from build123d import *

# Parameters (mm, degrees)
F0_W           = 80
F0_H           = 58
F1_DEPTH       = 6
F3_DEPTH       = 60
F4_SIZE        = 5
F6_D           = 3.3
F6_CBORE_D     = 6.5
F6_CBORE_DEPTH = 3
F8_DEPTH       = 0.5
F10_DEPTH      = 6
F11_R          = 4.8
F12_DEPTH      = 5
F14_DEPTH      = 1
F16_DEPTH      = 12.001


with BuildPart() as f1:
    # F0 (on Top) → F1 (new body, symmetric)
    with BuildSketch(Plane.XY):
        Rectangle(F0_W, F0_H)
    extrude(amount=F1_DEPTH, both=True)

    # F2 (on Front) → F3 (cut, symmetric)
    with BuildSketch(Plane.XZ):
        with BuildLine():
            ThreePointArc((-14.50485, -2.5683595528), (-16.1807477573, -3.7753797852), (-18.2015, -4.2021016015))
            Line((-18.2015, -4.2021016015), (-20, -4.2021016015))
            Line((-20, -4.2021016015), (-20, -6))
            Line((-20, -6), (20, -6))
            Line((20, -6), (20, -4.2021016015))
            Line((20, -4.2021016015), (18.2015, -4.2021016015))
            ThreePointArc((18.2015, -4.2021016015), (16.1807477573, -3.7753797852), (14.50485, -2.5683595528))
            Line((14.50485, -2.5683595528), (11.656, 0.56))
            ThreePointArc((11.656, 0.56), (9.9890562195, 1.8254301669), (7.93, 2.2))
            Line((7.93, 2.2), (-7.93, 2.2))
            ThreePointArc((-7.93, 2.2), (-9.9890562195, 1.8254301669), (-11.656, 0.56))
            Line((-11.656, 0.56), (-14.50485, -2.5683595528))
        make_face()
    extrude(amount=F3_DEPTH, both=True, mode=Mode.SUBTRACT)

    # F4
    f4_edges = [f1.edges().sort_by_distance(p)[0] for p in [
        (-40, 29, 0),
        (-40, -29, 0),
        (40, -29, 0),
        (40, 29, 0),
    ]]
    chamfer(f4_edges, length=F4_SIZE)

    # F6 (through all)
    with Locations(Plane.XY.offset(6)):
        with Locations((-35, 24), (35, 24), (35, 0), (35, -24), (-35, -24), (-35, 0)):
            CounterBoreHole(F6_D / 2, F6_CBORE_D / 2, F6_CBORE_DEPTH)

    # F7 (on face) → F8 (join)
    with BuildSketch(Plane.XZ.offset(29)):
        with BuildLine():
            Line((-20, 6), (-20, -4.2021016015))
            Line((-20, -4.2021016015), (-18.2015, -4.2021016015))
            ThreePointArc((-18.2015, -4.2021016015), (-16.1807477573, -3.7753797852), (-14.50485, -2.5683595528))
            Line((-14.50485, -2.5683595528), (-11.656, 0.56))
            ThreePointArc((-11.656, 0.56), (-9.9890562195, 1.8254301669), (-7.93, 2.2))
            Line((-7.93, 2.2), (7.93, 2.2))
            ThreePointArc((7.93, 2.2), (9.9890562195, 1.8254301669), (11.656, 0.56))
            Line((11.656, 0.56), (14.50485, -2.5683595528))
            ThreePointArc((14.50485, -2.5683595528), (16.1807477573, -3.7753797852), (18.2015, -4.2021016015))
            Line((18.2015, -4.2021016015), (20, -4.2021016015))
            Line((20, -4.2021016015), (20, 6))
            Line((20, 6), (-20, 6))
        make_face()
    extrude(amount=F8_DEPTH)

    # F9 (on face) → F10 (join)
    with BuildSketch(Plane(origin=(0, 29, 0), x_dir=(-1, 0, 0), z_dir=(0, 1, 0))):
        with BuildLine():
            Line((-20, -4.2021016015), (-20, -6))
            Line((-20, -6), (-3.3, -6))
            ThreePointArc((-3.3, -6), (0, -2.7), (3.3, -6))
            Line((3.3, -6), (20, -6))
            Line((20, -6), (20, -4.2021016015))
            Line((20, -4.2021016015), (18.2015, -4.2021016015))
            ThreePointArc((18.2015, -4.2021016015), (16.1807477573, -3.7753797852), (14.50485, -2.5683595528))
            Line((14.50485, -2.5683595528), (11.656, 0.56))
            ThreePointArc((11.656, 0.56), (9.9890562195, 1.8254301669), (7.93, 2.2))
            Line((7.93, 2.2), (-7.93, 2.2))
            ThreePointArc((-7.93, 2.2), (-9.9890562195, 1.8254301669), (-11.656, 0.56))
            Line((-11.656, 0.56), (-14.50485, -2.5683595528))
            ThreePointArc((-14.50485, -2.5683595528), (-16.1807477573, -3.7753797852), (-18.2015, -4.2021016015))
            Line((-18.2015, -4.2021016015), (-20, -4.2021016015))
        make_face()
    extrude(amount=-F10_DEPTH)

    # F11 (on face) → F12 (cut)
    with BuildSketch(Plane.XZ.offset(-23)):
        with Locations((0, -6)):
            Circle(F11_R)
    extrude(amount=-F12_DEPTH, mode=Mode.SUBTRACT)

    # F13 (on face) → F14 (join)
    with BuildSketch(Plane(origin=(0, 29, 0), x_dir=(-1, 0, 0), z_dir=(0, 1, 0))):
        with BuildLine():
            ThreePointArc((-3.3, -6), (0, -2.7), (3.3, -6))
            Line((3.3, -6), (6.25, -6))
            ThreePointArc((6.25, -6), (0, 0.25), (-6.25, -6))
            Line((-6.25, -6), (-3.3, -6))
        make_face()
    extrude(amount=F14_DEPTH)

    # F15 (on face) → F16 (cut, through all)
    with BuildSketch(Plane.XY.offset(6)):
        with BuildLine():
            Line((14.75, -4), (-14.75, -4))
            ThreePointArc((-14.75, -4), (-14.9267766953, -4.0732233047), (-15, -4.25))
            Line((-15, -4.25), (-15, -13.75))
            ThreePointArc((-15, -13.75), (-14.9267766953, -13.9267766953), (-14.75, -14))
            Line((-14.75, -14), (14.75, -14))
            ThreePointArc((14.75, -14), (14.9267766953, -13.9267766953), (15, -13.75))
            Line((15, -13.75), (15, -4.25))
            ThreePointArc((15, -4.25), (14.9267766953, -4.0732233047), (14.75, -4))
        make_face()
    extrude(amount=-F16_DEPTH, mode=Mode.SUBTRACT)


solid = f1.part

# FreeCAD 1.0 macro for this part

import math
import FreeCAD as App
import Part
import Sketcher
from FreeCAD import Vector
Q = App.Units.Quantity


def edges_at(feature, points):
    """Names of the edges that pass closest to the given points."""
    edges = feature.Shape.Edges
    near = lambda p: min(range(len(edges)), key=lambda i: edges[i].distToShape(Part.Vertex(*p))[0])
    return sorted({f"Edge{near(p) + 1}" for p in points})


def add_polygon(sketch, points):
    """Adds a closed chain of lines whose ends are joined by coincident constraints."""
    first, n = sketch.GeometryCount, len(points)
    for a, b in zip(points, points[1:] + points[:1]):
        sketch.addGeometry(Part.LineSegment(App.Vector(*a, 0), App.Vector(*b, 0)), False)
    for i in range(n):
        sketch.addConstraint(Sketcher.Constraint("Coincident", first + i, 2, first + (i + 1) % n, 1))

doc = App.newDocument("Part")
body = doc.addObject("PartDesign::Body", "Body")

sketch1 = doc.addObject("Sketcher::SketchObject", "Sketch")
body.addObject(sketch1)
sketch1.AttachmentSupport = (doc.XY_Plane, [""])
sketch1.MapMode = "FlatFace"
add_polygon(sketch1, [(-40, 29), (-40, -29), (40, -29), (40, 29)])
sketch1.addConstraint([
    Sketcher.Constraint("Vertical", 0),
    Sketcher.Constraint("Horizontal", 1),
    Sketcher.Constraint("Vertical", 2),
    Sketcher.Constraint("Horizontal", 3),
    Sketcher.Constraint("Symmetric", 0, 2, 2, 2, -1, 1),
    Sketcher.Constraint("DistanceX", 1, 1, 1, 2, Q("80 mm")),
    Sketcher.Constraint("DistanceY", 0, 2, 0, 1, Q("58 mm")),
])
pad1 = doc.addObject("PartDesign::Pad", "Pad")
body.addObject(pad1)
pad1.Profile = sketch1
pad1.Length = 12
pad1.Midplane = True

sketch2 = doc.addObject("Sketcher::SketchObject", "Sketch001")
body.addObject(sketch2)
sketch2.AttachmentSupport = (doc.XZ_Plane, [""])
sketch2.MapMode = "FlatFace"
sketch2.addGeometry([
    Part.ArcOfCircle(Part.Circle(Vector(-18.201917, 0.797898, 0), Vector(0, 0, 1), 5), math.radians(-89.995217), math.radians(-42.318523)),
    Part.LineSegment(Vector(-18.2015, -4.202102, 0), Vector(-20, -4.202102, 0)),
    Part.LineSegment(Vector(-20, -4.202102, 0), Vector(-20, -6, 0)),
    Part.LineSegment(Vector(-20, -6, 0), Vector(20, -6, 0)),
    Part.LineSegment(Vector(20, -6, 0), Vector(20, -4.202102, 0)),
    Part.LineSegment(Vector(20, -4.202102, 0), Vector(18.2015, -4.202102, 0)),
    Part.ArcOfCircle(Part.Circle(Vector(18.201917, 0.797898, 0), Vector(0, 0, 1), 5), math.radians(-137.681477), math.radians(-90.004783)),
    Part.LineSegment(Vector(14.50485, -2.56836, 0), Vector(11.656, 0.56, 0)),
    Part.ArcOfCircle(Part.Circle(Vector(8.176214, -2.293259, 0), Vector(0, 0, 1), 4.5), math.radians(39.350124), math.radians(93.136458)),
    Part.LineSegment(Vector(7.93, 2.2, 0), Vector(-7.93, 2.2, 0)),
    Part.ArcOfCircle(Part.Circle(Vector(-8.176214, -2.293259, 0), Vector(0, 0, 1), 4.5), math.radians(86.863542), math.radians(140.649876)),
    Part.LineSegment(Vector(-11.656, 0.56, 0), Vector(-14.50485, -2.56836, 0)),
], False)
sketch2.addConstraint([
    Sketcher.Constraint("Coincident", 0, 1, 1, 1),
    Sketcher.Constraint("Coincident", 1, 2, 2, 1),
    Sketcher.Constraint("Coincident", 2, 2, 3, 1),
    Sketcher.Constraint("Coincident", 3, 2, 4, 1),
    Sketcher.Constraint("Coincident", 4, 2, 5, 1),
    Sketcher.Constraint("Coincident", 5, 2, 6, 2),
    Sketcher.Constraint("Coincident", 6, 1, 7, 1),
    Sketcher.Constraint("Coincident", 7, 2, 8, 1),
    Sketcher.Constraint("Coincident", 8, 2, 9, 1),
    Sketcher.Constraint("Coincident", 9, 2, 10, 1),
    Sketcher.Constraint("Coincident", 10, 2, 11, 1),
    Sketcher.Constraint("Coincident", 11, 2, 0, 2),
    Sketcher.Constraint("Horizontal", 1),
    Sketcher.Constraint("Vertical", 2),
    Sketcher.Constraint("Horizontal", 3),
    Sketcher.Constraint("Vertical", 4),
    Sketcher.Constraint("Horizontal", 5),
    Sketcher.Constraint("Horizontal", 9),
    Sketcher.Constraint("Equal", 0, 6),
    Sketcher.Constraint("Equal", 8, 10),
    Sketcher.Constraint("Symmetric", 0, 3, 6, 3, -2),
    Sketcher.Constraint("Symmetric", 8, 3, 10, 3, -2),
    Sketcher.Constraint("Horizontal", 7, 2, 10, 2),
    Sketcher.Constraint("Horizontal", 6, 1, 11, 2),
    Sketcher.Constraint("Equal", 1, 5),
    Sketcher.Constraint("Radius", 0, Q("5 mm")),
    Sketcher.Constraint("Radius", 8, Q("4.5 mm")),
    Sketcher.Constraint("DistanceX", 3, 1, 3, 2, Q("40 mm")),
    Sketcher.Constraint("DistanceX", 1, 2, -1, 1, Q("20 mm")),
    Sketcher.Constraint("DistanceY", 2, 2, -1, 1, Q("6 mm")),
    Sketcher.Constraint("DistanceX", 9, 2, 9, 1, Q("15.86 mm")),
    Sketcher.Constraint("DistanceY", -1, 1, 8, 2, Q("2.2 mm")),
    Sketcher.Constraint("DistanceY", -1, 1, 7, 2, Q("0.56 mm")),
    Sketcher.Constraint("DistanceX", 1, 2, 1, 1, Q("1.7985 mm")),
    Sketcher.Constraint("DistanceY", 2, 2, 2, 1, Q("1.797898 mm")),
    Sketcher.Constraint("DistanceX", -1, 1, 7, 2, Q("11.656 mm")),
    Sketcher.Constraint("DistanceY", 6, 1, 8, 3, Q("0.2751 mm")),
    Sketcher.Constraint("DistanceX", -1, 1, 6, 1, Q("14.50485 mm")),
])
pocket1 = doc.addObject("PartDesign::Pocket", "Pocket")
body.addObject(pocket1)
pocket1.Profile = sketch2
pocket1.Length = 120
pocket1.Midplane = True
doc.recompute()

chamfer = doc.addObject("PartDesign::Chamfer", "Chamfer")
body.addObject(chamfer)
chamfer.Base = (pocket1, edges_at(pocket1, [
    (-40, 29, 0),
    (-40, -29, 0),
    (40, -29, 0),
    (40, 29, 0),
]))
chamfer.Size = 5

sketch3 = doc.addObject("Sketcher::SketchObject", "Sketch002")
body.addObject(sketch3)
sketch3.AttachmentSupport = (doc.XY_Plane, [""])
sketch3.MapMode = "FlatFace"
sketch3.AttachmentOffset = App.Placement(Vector(0, 0, 6), App.Rotation())
sketch3.addGeometry([
    Part.Circle(Vector(-35, 24, 0), Vector(0, 0, 1), 1.65),
    Part.Circle(Vector(35, 24, 0), Vector(0, 0, 1), 1.65),
    Part.Circle(Vector(35, 0, 0), Vector(0, 0, 1), 1.65),
    Part.Circle(Vector(35, -24, 0), Vector(0, 0, 1), 1.65),
    Part.Circle(Vector(-35, -24, 0), Vector(0, 0, 1), 1.65),
    Part.Circle(Vector(-35, 0, 0), Vector(0, 0, 1), 1.65),
], False)
sketch3.addConstraint([
    Sketcher.Constraint("Equal", 0, 1),
    Sketcher.Constraint("Equal", 1, 2),
    Sketcher.Constraint("Equal", 2, 3),
    Sketcher.Constraint("Equal", 3, 4),
    Sketcher.Constraint("Equal", 4, 5),
    Sketcher.Constraint("Symmetric", 0, 3, 3, 3, -1, 1),
    Sketcher.Constraint("Symmetric", 1, 3, 4, 3, -1, 1),
    Sketcher.Constraint("Symmetric", 2, 3, 5, 3, -1, 1),
    Sketcher.Constraint("Symmetric", 0, 3, 1, 3, -2),
    Sketcher.Constraint("PointOnObject", 2, 3, -1),
    Sketcher.Constraint("Vertical", 1, 3, 2, 3),
    Sketcher.Constraint("Diameter", 0, Q("3.3 mm")),
    Sketcher.Constraint("DistanceX", 0, 3, -1, 1, Q("35 mm")),
    Sketcher.Constraint("DistanceY", -1, 1, 0, 3, Q("24 mm")),
])
doc.recompute()
hole = doc.addObject("PartDesign::Hole", "Hole")
body.addObject(hole)
hole.Profile = sketch3
hole.ThreadType = "None"
hole.Diameter = 3.3
hole.DepthType = "ThroughAll"
hole.HoleCutType = "Counterbore"
hole.HoleCutDiameter = 6.5
hole.HoleCutDepth = 3

sketch4 = doc.addObject("Sketcher::SketchObject", "Sketch003")
body.addObject(sketch4)
sketch4.AttachmentSupport = (doc.XZ_Plane, [""])
sketch4.MapMode = "FlatFace"
sketch4.AttachmentOffset = App.Placement(Vector(0, 0, 29), App.Rotation())
sketch4.addGeometry([
    Part.LineSegment(Vector(-20, 6, 0), Vector(-20, -4.202102, 0)),
    Part.LineSegment(Vector(-20, -4.202102, 0), Vector(-18.2015, -4.202102, 0)),
    Part.ArcOfCircle(Part.Circle(Vector(-18.201917, 0.797898, 0), Vector(0, 0, 1), 5), math.radians(-89.995217), math.radians(-42.318523)),
    Part.LineSegment(Vector(-14.50485, -2.56836, 0), Vector(-11.656, 0.56, 0)),
    Part.ArcOfCircle(Part.Circle(Vector(-8.176214, -2.293259, 0), Vector(0, 0, 1), 4.5), math.radians(86.863542), math.radians(140.649876)),
    Part.LineSegment(Vector(-7.93, 2.2, 0), Vector(7.93, 2.2, 0)),
    Part.ArcOfCircle(Part.Circle(Vector(8.176214, -2.293259, 0), Vector(0, 0, 1), 4.5), math.radians(39.350124), math.radians(93.136458)),
    Part.LineSegment(Vector(11.656, 0.56, 0), Vector(14.50485, -2.56836, 0)),
    Part.ArcOfCircle(Part.Circle(Vector(18.201917, 0.797898, 0), Vector(0, 0, 1), 5), math.radians(-137.681477), math.radians(-90.004783)),
    Part.LineSegment(Vector(18.2015, -4.202102, 0), Vector(20, -4.202102, 0)),
    Part.LineSegment(Vector(20, -4.202102, 0), Vector(20, 6, 0)),
    Part.LineSegment(Vector(20, 6, 0), Vector(-20, 6, 0)),
], False)
sketch4.addConstraint([
    Sketcher.Constraint("Coincident", 0, 2, 1, 1),
    Sketcher.Constraint("Coincident", 1, 2, 2, 1),
    Sketcher.Constraint("Coincident", 2, 2, 3, 1),
    Sketcher.Constraint("Coincident", 3, 2, 4, 2),
    Sketcher.Constraint("Coincident", 4, 1, 5, 1),
    Sketcher.Constraint("Coincident", 5, 2, 6, 2),
    Sketcher.Constraint("Coincident", 6, 1, 7, 1),
    Sketcher.Constraint("Coincident", 7, 2, 8, 1),
    Sketcher.Constraint("Coincident", 8, 2, 9, 1),
    Sketcher.Constraint("Coincident", 9, 2, 10, 1),
    Sketcher.Constraint("Coincident", 10, 2, 11, 1),
    Sketcher.Constraint("Coincident", 11, 2, 0, 1),
    Sketcher.Constraint("Vertical", 0),
    Sketcher.Constraint("Horizontal", 1),
    Sketcher.Constraint("Horizontal", 5),
    Sketcher.Constraint("Horizontal", 9),
    Sketcher.Constraint("Vertical", 10),
    Sketcher.Constraint("Horizontal", 11),
    Sketcher.Constraint("Equal", 4, 6),
    Sketcher.Constraint("Equal", 2, 8),
    Sketcher.Constraint("Symmetric", 4, 3, 6, 3, -2),
    Sketcher.Constraint("Symmetric", 2, 3, 8, 3, -2),
    Sketcher.Constraint("Horizontal", 3, 2, 6, 1),
    Sketcher.Constraint("Horizontal", 2, 2, 7, 2),
    Sketcher.Constraint("Equal", 1, 9),
    Sketcher.Constraint("Radius", 2, Q("5 mm")),
    Sketcher.Constraint("Radius", 4, Q("4.5 mm")),
    Sketcher.Constraint("DistanceX", 11, 2, 11, 1, Q("40 mm")),
    Sketcher.Constraint("DistanceX", 0, 2, -1, 1, Q("20 mm")),
    Sketcher.Constraint("DistanceY", -1, 1, 10, 2, Q("6 mm")),
    Sketcher.Constraint("DistanceX", 5, 1, 5, 2, Q("15.86 mm")),
    Sketcher.Constraint("DistanceY", -1, 1, 4, 1, Q("2.2 mm")),
    Sketcher.Constraint("DistanceY", -1, 1, 3, 2, Q("0.56 mm")),
    Sketcher.Constraint("DistanceX", 1, 1, 1, 2, Q("1.7985 mm")),
    Sketcher.Constraint("DistanceY", 0, 2, 0, 1, Q("10.202102 mm")),
    Sketcher.Constraint("DistanceX", 3, 2, -1, 1, Q("11.656 mm")),
    Sketcher.Constraint("DistanceY", 2, 2, 4, 3, Q("0.2751 mm")),
    Sketcher.Constraint("DistanceX", 2, 2, -1, 1, Q("14.50485 mm")),
])
pad2 = doc.addObject("PartDesign::Pad", "Pad001")
body.addObject(pad2)
pad2.Profile = sketch4
pad2.Length = 0.5

sketch5 = doc.addObject("Sketcher::SketchObject", "Sketch004")
body.addObject(sketch5)
sketch5.AttachmentSupport = (doc.XZ_Plane, [""])
sketch5.MapMode = "FlatFace"
sketch5.AttachmentOffset = App.Placement(Vector(0, 0, -29), App.Rotation())
sketch5.addGeometry([
    Part.LineSegment(Vector(20, -4.202102, 0), Vector(20, -6, 0)),
    Part.LineSegment(Vector(20, -6, 0), Vector(3.3, -6, 0)),
    Part.ArcOfCircle(Part.Circle(Vector(0, -6, 0), Vector(0, 0, 1), 3.3), math.radians(0), math.radians(180)),
    Part.LineSegment(Vector(-3.3, -6, 0), Vector(-20, -6, 0)),
    Part.LineSegment(Vector(-20, -6, 0), Vector(-20, -4.202102, 0)),
    Part.LineSegment(Vector(-20, -4.202102, 0), Vector(-18.2015, -4.202102, 0)),
    Part.ArcOfCircle(Part.Circle(Vector(-18.201917, 0.797898, 0), Vector(0, 0, 1), 5), math.radians(-89.995217), math.radians(-42.318523)),
    Part.LineSegment(Vector(-14.50485, -2.56836, 0), Vector(-11.656, 0.56, 0)),
    Part.ArcOfCircle(Part.Circle(Vector(-8.176214, -2.293259, 0), Vector(0, 0, 1), 4.5), math.radians(86.863542), math.radians(140.649876)),
    Part.LineSegment(Vector(-7.93, 2.2, 0), Vector(7.93, 2.2, 0)),
    Part.ArcOfCircle(Part.Circle(Vector(8.176214, -2.293259, 0), Vector(0, 0, 1), 4.5), math.radians(39.350124), math.radians(93.136458)),
    Part.LineSegment(Vector(11.656, 0.56, 0), Vector(14.50485, -2.56836, 0)),
    Part.ArcOfCircle(Part.Circle(Vector(18.201917, 0.797898, 0), Vector(0, 0, 1), 5), math.radians(-137.681477), math.radians(-90.004783)),
    Part.LineSegment(Vector(18.2015, -4.202102, 0), Vector(20, -4.202102, 0)),
], False)
sketch5.addConstraint([
    Sketcher.Constraint("Coincident", 0, 2, 1, 1),
    Sketcher.Constraint("Coincident", 1, 2, 2, 1),
    Sketcher.Constraint("Coincident", 2, 2, 3, 1),
    Sketcher.Constraint("Coincident", 3, 2, 4, 1),
    Sketcher.Constraint("Coincident", 4, 2, 5, 1),
    Sketcher.Constraint("Coincident", 5, 2, 6, 1),
    Sketcher.Constraint("Coincident", 6, 2, 7, 1),
    Sketcher.Constraint("Coincident", 7, 2, 8, 2),
    Sketcher.Constraint("Coincident", 8, 1, 9, 1),
    Sketcher.Constraint("Coincident", 9, 2, 10, 2),
    Sketcher.Constraint("Coincident", 10, 1, 11, 1),
    Sketcher.Constraint("Coincident", 11, 2, 12, 1),
    Sketcher.Constraint("Coincident", 12, 2, 13, 1),
    Sketcher.Constraint("Coincident", 13, 2, 0, 1),
    Sketcher.Constraint("Vertical", 0),
    Sketcher.Constraint("Horizontal", 1),
    Sketcher.Constraint("Horizontal", 3),
    Sketcher.Constraint("Vertical", 4),
    Sketcher.Constraint("Horizontal", 5),
    Sketcher.Constraint("Horizontal", 9),
    Sketcher.Constraint("Horizontal", 13),
    Sketcher.Constraint("Equal", 8, 10),
    Sketcher.Constraint("Equal", 6, 12),
    Sketcher.Constraint("Symmetric", 8, 3, 10, 3, -2),
    Sketcher.Constraint("Symmetric", 6, 3, 12, 3, -2),
    Sketcher.Constraint("Symmetric", 1, 2, 2, 2, -2),
    Sketcher.Constraint("Horizontal", 2, 3, 0, 2),
    Sketcher.Constraint("Horizontal", 7, 2, 10, 1),
    Sketcher.Constraint("Horizontal", 6, 2, 11, 2),
    Sketcher.Constraint("Equal", 1, 3),
    Sketcher.Constraint("Equal", 5, 13),
    Sketcher.Constraint("Radius", 6, Q("5 mm")),
    Sketcher.Constraint("Radius", 2, Q("3.3 mm")),
    Sketcher.Constraint("Radius", 8, Q("4.5 mm")),
    Sketcher.Constraint("DistanceX", 1, 2, 1, 1, Q("16.7 mm")),
    Sketcher.Constraint("DistanceY", 2, 3, -1, 1, Q("6 mm")),
    Sketcher.Constraint("DistanceX", 9, 1, 9, 2, Q("15.86 mm")),
    Sketcher.Constraint("DistanceY", -1, 1, 8, 1, Q("2.2 mm")),
    Sketcher.Constraint("DistanceY", -1, 1, 7, 2, Q("0.56 mm")),
    Sketcher.Constraint("DistanceX", 5, 1, 5, 2, Q("1.7985 mm")),
    Sketcher.Constraint("DistanceY", 0, 2, 0, 1, Q("1.797898 mm")),
    Sketcher.Constraint("DistanceX", 7, 2, -1, 1, Q("11.656 mm")),
    Sketcher.Constraint("DistanceY", 6, 2, 8, 3, Q("0.2751 mm")),
    Sketcher.Constraint("DistanceX", 6, 2, -1, 1, Q("14.50485 mm")),
])
pad3 = doc.addObject("PartDesign::Pad", "Pad002")
body.addObject(pad3)
pad3.Profile = sketch5
pad3.Length = 6

sketch6 = doc.addObject("Sketcher::SketchObject", "Sketch005")
body.addObject(sketch6)
sketch6.AttachmentSupport = (doc.XZ_Plane, [""])
sketch6.MapMode = "FlatFace"
sketch6.AttachmentOffset = App.Placement(Vector(0, 0, -23), App.Rotation())
sketch6.addGeometry(Part.Circle(Vector(0, -6, 0), Vector(0, 0, 1), 4.8), False)
sketch6.addConstraint([
    Sketcher.Constraint("PointOnObject", 0, 3, -2),
    Sketcher.Constraint("Diameter", 0, Q("9.6 mm")),
    Sketcher.Constraint("DistanceY", 0, 3, -1, 1, Q("6 mm")),
])
pocket2 = doc.addObject("PartDesign::Pocket", "Pocket001")
body.addObject(pocket2)
pocket2.Profile = sketch6
pocket2.Length = 5

sketch7 = doc.addObject("Sketcher::SketchObject", "Sketch006")
body.addObject(sketch7)
sketch7.AttachmentSupport = (doc.XZ_Plane, [""])
sketch7.MapMode = "FlatFace"
sketch7.AttachmentOffset = App.Placement(Vector(0, 0, -29), App.Rotation())
sketch7.addGeometry([
    Part.ArcOfCircle(Part.Circle(Vector(0, -6, 0), Vector(0, 0, 1), 3.3), math.radians(0), math.radians(180)),
    Part.LineSegment(Vector(-3.3, -6, 0), Vector(-6.25, -6, 0)),
    Part.ArcOfCircle(Part.Circle(Vector(0, -6, 0), Vector(0, 0, 1), 6.25), math.radians(0), math.radians(180)),
    Part.LineSegment(Vector(6.25, -6, 0), Vector(3.3, -6, 0)),
], False)
sketch7.addConstraint([
    Sketcher.Constraint("Coincident", 0, 2, 1, 1),
    Sketcher.Constraint("Coincident", 1, 2, 2, 2),
    Sketcher.Constraint("Coincident", 2, 1, 3, 1),
    Sketcher.Constraint("Coincident", 3, 2, 0, 1),
    Sketcher.Constraint("Horizontal", 1),
    Sketcher.Constraint("Horizontal", 3),
    Sketcher.Constraint("Coincident", 2, 3, 0, 3),
    Sketcher.Constraint("Symmetric", 1, 2, 2, 1, -2),
    Sketcher.Constraint("Horizontal", 2, 3, 0, 2),
    Sketcher.Constraint("Radius", 0, Q("3.3 mm")),
    Sketcher.Constraint("Radius", 2, Q("6.25 mm")),
    Sketcher.Constraint("DistanceY", 0, 3, -1, 1, Q("6 mm")),
])
pad4 = doc.addObject("PartDesign::Pad", "Pad003")
body.addObject(pad4)
pad4.Profile = sketch7
pad4.Length = 1
pad4.Reversed = True

sketch8 = doc.addObject("Sketcher::SketchObject", "Sketch007")
body.addObject(sketch8)
sketch8.AttachmentSupport = (doc.XY_Plane, [""])
sketch8.MapMode = "FlatFace"
sketch8.AttachmentOffset = App.Placement(Vector(0, 0, 6), App.Rotation())
sketch8.addGeometry([
    Part.LineSegment(Vector(14.75, -4, 0), Vector(-14.75, -4, 0)),
    Part.ArcOfCircle(Part.Circle(Vector(-14.75, -4.25, 0), Vector(0, 0, 1), 0.25), math.radians(90), math.radians(180)),
    Part.LineSegment(Vector(-15, -4.25, 0), Vector(-15, -13.75, 0)),
    Part.ArcOfCircle(Part.Circle(Vector(-14.75, -13.75, 0), Vector(0, 0, 1), 0.25), math.radians(180), math.radians(270)),
    Part.LineSegment(Vector(-14.75, -14, 0), Vector(14.75, -14, 0)),
    Part.ArcOfCircle(Part.Circle(Vector(14.75, -13.75, 0), Vector(0, 0, 1), 0.25), math.radians(-90), math.radians(0)),
    Part.LineSegment(Vector(15, -13.75, 0), Vector(15, -4.25, 0)),
    Part.ArcOfCircle(Part.Circle(Vector(14.75, -4.25, 0), Vector(0, 0, 1), 0.25), math.radians(0), math.radians(90)),
], False)
sketch8.addConstraint([
    Sketcher.Constraint("Tangent", 0, 2, 1, 1),
    Sketcher.Constraint("Tangent", 1, 2, 2, 1),
    Sketcher.Constraint("Tangent", 2, 2, 3, 1),
    Sketcher.Constraint("Tangent", 3, 2, 4, 1),
    Sketcher.Constraint("Tangent", 4, 2, 5, 1),
    Sketcher.Constraint("Tangent", 5, 2, 6, 1),
    Sketcher.Constraint("Tangent", 6, 2, 7, 1),
    Sketcher.Constraint("Tangent", 7, 2, 0, 1),
    Sketcher.Constraint("Horizontal", 0),
    Sketcher.Constraint("Vertical", 2),
    Sketcher.Constraint("Horizontal", 4),
    Sketcher.Constraint("Vertical", 6),
    Sketcher.Constraint("Equal", 1, 3),
    Sketcher.Constraint("Equal", 3, 5),
    Sketcher.Constraint("Equal", 5, 7),
    Sketcher.Constraint("Radius", 1, Q("0.25 mm")),
    Sketcher.Constraint("DistanceX", 0, 2, 0, 1, Q("29.5 mm")),
    Sketcher.Constraint("DistanceY", 2, 2, 2, 1, Q("9.5 mm")),
    Sketcher.Constraint("DistanceY", 0, 2, -1, 1, Q("4 mm")),
    Sketcher.Constraint("DistanceX", 1, 2, -1, 1, Q("15 mm")),
])
pocket3 = doc.addObject("PartDesign::Pocket", "Pocket002")
body.addObject(pocket3)
pocket3.Profile = sketch8
pocket3.Type = "ThroughAll"

doc.recompute()
